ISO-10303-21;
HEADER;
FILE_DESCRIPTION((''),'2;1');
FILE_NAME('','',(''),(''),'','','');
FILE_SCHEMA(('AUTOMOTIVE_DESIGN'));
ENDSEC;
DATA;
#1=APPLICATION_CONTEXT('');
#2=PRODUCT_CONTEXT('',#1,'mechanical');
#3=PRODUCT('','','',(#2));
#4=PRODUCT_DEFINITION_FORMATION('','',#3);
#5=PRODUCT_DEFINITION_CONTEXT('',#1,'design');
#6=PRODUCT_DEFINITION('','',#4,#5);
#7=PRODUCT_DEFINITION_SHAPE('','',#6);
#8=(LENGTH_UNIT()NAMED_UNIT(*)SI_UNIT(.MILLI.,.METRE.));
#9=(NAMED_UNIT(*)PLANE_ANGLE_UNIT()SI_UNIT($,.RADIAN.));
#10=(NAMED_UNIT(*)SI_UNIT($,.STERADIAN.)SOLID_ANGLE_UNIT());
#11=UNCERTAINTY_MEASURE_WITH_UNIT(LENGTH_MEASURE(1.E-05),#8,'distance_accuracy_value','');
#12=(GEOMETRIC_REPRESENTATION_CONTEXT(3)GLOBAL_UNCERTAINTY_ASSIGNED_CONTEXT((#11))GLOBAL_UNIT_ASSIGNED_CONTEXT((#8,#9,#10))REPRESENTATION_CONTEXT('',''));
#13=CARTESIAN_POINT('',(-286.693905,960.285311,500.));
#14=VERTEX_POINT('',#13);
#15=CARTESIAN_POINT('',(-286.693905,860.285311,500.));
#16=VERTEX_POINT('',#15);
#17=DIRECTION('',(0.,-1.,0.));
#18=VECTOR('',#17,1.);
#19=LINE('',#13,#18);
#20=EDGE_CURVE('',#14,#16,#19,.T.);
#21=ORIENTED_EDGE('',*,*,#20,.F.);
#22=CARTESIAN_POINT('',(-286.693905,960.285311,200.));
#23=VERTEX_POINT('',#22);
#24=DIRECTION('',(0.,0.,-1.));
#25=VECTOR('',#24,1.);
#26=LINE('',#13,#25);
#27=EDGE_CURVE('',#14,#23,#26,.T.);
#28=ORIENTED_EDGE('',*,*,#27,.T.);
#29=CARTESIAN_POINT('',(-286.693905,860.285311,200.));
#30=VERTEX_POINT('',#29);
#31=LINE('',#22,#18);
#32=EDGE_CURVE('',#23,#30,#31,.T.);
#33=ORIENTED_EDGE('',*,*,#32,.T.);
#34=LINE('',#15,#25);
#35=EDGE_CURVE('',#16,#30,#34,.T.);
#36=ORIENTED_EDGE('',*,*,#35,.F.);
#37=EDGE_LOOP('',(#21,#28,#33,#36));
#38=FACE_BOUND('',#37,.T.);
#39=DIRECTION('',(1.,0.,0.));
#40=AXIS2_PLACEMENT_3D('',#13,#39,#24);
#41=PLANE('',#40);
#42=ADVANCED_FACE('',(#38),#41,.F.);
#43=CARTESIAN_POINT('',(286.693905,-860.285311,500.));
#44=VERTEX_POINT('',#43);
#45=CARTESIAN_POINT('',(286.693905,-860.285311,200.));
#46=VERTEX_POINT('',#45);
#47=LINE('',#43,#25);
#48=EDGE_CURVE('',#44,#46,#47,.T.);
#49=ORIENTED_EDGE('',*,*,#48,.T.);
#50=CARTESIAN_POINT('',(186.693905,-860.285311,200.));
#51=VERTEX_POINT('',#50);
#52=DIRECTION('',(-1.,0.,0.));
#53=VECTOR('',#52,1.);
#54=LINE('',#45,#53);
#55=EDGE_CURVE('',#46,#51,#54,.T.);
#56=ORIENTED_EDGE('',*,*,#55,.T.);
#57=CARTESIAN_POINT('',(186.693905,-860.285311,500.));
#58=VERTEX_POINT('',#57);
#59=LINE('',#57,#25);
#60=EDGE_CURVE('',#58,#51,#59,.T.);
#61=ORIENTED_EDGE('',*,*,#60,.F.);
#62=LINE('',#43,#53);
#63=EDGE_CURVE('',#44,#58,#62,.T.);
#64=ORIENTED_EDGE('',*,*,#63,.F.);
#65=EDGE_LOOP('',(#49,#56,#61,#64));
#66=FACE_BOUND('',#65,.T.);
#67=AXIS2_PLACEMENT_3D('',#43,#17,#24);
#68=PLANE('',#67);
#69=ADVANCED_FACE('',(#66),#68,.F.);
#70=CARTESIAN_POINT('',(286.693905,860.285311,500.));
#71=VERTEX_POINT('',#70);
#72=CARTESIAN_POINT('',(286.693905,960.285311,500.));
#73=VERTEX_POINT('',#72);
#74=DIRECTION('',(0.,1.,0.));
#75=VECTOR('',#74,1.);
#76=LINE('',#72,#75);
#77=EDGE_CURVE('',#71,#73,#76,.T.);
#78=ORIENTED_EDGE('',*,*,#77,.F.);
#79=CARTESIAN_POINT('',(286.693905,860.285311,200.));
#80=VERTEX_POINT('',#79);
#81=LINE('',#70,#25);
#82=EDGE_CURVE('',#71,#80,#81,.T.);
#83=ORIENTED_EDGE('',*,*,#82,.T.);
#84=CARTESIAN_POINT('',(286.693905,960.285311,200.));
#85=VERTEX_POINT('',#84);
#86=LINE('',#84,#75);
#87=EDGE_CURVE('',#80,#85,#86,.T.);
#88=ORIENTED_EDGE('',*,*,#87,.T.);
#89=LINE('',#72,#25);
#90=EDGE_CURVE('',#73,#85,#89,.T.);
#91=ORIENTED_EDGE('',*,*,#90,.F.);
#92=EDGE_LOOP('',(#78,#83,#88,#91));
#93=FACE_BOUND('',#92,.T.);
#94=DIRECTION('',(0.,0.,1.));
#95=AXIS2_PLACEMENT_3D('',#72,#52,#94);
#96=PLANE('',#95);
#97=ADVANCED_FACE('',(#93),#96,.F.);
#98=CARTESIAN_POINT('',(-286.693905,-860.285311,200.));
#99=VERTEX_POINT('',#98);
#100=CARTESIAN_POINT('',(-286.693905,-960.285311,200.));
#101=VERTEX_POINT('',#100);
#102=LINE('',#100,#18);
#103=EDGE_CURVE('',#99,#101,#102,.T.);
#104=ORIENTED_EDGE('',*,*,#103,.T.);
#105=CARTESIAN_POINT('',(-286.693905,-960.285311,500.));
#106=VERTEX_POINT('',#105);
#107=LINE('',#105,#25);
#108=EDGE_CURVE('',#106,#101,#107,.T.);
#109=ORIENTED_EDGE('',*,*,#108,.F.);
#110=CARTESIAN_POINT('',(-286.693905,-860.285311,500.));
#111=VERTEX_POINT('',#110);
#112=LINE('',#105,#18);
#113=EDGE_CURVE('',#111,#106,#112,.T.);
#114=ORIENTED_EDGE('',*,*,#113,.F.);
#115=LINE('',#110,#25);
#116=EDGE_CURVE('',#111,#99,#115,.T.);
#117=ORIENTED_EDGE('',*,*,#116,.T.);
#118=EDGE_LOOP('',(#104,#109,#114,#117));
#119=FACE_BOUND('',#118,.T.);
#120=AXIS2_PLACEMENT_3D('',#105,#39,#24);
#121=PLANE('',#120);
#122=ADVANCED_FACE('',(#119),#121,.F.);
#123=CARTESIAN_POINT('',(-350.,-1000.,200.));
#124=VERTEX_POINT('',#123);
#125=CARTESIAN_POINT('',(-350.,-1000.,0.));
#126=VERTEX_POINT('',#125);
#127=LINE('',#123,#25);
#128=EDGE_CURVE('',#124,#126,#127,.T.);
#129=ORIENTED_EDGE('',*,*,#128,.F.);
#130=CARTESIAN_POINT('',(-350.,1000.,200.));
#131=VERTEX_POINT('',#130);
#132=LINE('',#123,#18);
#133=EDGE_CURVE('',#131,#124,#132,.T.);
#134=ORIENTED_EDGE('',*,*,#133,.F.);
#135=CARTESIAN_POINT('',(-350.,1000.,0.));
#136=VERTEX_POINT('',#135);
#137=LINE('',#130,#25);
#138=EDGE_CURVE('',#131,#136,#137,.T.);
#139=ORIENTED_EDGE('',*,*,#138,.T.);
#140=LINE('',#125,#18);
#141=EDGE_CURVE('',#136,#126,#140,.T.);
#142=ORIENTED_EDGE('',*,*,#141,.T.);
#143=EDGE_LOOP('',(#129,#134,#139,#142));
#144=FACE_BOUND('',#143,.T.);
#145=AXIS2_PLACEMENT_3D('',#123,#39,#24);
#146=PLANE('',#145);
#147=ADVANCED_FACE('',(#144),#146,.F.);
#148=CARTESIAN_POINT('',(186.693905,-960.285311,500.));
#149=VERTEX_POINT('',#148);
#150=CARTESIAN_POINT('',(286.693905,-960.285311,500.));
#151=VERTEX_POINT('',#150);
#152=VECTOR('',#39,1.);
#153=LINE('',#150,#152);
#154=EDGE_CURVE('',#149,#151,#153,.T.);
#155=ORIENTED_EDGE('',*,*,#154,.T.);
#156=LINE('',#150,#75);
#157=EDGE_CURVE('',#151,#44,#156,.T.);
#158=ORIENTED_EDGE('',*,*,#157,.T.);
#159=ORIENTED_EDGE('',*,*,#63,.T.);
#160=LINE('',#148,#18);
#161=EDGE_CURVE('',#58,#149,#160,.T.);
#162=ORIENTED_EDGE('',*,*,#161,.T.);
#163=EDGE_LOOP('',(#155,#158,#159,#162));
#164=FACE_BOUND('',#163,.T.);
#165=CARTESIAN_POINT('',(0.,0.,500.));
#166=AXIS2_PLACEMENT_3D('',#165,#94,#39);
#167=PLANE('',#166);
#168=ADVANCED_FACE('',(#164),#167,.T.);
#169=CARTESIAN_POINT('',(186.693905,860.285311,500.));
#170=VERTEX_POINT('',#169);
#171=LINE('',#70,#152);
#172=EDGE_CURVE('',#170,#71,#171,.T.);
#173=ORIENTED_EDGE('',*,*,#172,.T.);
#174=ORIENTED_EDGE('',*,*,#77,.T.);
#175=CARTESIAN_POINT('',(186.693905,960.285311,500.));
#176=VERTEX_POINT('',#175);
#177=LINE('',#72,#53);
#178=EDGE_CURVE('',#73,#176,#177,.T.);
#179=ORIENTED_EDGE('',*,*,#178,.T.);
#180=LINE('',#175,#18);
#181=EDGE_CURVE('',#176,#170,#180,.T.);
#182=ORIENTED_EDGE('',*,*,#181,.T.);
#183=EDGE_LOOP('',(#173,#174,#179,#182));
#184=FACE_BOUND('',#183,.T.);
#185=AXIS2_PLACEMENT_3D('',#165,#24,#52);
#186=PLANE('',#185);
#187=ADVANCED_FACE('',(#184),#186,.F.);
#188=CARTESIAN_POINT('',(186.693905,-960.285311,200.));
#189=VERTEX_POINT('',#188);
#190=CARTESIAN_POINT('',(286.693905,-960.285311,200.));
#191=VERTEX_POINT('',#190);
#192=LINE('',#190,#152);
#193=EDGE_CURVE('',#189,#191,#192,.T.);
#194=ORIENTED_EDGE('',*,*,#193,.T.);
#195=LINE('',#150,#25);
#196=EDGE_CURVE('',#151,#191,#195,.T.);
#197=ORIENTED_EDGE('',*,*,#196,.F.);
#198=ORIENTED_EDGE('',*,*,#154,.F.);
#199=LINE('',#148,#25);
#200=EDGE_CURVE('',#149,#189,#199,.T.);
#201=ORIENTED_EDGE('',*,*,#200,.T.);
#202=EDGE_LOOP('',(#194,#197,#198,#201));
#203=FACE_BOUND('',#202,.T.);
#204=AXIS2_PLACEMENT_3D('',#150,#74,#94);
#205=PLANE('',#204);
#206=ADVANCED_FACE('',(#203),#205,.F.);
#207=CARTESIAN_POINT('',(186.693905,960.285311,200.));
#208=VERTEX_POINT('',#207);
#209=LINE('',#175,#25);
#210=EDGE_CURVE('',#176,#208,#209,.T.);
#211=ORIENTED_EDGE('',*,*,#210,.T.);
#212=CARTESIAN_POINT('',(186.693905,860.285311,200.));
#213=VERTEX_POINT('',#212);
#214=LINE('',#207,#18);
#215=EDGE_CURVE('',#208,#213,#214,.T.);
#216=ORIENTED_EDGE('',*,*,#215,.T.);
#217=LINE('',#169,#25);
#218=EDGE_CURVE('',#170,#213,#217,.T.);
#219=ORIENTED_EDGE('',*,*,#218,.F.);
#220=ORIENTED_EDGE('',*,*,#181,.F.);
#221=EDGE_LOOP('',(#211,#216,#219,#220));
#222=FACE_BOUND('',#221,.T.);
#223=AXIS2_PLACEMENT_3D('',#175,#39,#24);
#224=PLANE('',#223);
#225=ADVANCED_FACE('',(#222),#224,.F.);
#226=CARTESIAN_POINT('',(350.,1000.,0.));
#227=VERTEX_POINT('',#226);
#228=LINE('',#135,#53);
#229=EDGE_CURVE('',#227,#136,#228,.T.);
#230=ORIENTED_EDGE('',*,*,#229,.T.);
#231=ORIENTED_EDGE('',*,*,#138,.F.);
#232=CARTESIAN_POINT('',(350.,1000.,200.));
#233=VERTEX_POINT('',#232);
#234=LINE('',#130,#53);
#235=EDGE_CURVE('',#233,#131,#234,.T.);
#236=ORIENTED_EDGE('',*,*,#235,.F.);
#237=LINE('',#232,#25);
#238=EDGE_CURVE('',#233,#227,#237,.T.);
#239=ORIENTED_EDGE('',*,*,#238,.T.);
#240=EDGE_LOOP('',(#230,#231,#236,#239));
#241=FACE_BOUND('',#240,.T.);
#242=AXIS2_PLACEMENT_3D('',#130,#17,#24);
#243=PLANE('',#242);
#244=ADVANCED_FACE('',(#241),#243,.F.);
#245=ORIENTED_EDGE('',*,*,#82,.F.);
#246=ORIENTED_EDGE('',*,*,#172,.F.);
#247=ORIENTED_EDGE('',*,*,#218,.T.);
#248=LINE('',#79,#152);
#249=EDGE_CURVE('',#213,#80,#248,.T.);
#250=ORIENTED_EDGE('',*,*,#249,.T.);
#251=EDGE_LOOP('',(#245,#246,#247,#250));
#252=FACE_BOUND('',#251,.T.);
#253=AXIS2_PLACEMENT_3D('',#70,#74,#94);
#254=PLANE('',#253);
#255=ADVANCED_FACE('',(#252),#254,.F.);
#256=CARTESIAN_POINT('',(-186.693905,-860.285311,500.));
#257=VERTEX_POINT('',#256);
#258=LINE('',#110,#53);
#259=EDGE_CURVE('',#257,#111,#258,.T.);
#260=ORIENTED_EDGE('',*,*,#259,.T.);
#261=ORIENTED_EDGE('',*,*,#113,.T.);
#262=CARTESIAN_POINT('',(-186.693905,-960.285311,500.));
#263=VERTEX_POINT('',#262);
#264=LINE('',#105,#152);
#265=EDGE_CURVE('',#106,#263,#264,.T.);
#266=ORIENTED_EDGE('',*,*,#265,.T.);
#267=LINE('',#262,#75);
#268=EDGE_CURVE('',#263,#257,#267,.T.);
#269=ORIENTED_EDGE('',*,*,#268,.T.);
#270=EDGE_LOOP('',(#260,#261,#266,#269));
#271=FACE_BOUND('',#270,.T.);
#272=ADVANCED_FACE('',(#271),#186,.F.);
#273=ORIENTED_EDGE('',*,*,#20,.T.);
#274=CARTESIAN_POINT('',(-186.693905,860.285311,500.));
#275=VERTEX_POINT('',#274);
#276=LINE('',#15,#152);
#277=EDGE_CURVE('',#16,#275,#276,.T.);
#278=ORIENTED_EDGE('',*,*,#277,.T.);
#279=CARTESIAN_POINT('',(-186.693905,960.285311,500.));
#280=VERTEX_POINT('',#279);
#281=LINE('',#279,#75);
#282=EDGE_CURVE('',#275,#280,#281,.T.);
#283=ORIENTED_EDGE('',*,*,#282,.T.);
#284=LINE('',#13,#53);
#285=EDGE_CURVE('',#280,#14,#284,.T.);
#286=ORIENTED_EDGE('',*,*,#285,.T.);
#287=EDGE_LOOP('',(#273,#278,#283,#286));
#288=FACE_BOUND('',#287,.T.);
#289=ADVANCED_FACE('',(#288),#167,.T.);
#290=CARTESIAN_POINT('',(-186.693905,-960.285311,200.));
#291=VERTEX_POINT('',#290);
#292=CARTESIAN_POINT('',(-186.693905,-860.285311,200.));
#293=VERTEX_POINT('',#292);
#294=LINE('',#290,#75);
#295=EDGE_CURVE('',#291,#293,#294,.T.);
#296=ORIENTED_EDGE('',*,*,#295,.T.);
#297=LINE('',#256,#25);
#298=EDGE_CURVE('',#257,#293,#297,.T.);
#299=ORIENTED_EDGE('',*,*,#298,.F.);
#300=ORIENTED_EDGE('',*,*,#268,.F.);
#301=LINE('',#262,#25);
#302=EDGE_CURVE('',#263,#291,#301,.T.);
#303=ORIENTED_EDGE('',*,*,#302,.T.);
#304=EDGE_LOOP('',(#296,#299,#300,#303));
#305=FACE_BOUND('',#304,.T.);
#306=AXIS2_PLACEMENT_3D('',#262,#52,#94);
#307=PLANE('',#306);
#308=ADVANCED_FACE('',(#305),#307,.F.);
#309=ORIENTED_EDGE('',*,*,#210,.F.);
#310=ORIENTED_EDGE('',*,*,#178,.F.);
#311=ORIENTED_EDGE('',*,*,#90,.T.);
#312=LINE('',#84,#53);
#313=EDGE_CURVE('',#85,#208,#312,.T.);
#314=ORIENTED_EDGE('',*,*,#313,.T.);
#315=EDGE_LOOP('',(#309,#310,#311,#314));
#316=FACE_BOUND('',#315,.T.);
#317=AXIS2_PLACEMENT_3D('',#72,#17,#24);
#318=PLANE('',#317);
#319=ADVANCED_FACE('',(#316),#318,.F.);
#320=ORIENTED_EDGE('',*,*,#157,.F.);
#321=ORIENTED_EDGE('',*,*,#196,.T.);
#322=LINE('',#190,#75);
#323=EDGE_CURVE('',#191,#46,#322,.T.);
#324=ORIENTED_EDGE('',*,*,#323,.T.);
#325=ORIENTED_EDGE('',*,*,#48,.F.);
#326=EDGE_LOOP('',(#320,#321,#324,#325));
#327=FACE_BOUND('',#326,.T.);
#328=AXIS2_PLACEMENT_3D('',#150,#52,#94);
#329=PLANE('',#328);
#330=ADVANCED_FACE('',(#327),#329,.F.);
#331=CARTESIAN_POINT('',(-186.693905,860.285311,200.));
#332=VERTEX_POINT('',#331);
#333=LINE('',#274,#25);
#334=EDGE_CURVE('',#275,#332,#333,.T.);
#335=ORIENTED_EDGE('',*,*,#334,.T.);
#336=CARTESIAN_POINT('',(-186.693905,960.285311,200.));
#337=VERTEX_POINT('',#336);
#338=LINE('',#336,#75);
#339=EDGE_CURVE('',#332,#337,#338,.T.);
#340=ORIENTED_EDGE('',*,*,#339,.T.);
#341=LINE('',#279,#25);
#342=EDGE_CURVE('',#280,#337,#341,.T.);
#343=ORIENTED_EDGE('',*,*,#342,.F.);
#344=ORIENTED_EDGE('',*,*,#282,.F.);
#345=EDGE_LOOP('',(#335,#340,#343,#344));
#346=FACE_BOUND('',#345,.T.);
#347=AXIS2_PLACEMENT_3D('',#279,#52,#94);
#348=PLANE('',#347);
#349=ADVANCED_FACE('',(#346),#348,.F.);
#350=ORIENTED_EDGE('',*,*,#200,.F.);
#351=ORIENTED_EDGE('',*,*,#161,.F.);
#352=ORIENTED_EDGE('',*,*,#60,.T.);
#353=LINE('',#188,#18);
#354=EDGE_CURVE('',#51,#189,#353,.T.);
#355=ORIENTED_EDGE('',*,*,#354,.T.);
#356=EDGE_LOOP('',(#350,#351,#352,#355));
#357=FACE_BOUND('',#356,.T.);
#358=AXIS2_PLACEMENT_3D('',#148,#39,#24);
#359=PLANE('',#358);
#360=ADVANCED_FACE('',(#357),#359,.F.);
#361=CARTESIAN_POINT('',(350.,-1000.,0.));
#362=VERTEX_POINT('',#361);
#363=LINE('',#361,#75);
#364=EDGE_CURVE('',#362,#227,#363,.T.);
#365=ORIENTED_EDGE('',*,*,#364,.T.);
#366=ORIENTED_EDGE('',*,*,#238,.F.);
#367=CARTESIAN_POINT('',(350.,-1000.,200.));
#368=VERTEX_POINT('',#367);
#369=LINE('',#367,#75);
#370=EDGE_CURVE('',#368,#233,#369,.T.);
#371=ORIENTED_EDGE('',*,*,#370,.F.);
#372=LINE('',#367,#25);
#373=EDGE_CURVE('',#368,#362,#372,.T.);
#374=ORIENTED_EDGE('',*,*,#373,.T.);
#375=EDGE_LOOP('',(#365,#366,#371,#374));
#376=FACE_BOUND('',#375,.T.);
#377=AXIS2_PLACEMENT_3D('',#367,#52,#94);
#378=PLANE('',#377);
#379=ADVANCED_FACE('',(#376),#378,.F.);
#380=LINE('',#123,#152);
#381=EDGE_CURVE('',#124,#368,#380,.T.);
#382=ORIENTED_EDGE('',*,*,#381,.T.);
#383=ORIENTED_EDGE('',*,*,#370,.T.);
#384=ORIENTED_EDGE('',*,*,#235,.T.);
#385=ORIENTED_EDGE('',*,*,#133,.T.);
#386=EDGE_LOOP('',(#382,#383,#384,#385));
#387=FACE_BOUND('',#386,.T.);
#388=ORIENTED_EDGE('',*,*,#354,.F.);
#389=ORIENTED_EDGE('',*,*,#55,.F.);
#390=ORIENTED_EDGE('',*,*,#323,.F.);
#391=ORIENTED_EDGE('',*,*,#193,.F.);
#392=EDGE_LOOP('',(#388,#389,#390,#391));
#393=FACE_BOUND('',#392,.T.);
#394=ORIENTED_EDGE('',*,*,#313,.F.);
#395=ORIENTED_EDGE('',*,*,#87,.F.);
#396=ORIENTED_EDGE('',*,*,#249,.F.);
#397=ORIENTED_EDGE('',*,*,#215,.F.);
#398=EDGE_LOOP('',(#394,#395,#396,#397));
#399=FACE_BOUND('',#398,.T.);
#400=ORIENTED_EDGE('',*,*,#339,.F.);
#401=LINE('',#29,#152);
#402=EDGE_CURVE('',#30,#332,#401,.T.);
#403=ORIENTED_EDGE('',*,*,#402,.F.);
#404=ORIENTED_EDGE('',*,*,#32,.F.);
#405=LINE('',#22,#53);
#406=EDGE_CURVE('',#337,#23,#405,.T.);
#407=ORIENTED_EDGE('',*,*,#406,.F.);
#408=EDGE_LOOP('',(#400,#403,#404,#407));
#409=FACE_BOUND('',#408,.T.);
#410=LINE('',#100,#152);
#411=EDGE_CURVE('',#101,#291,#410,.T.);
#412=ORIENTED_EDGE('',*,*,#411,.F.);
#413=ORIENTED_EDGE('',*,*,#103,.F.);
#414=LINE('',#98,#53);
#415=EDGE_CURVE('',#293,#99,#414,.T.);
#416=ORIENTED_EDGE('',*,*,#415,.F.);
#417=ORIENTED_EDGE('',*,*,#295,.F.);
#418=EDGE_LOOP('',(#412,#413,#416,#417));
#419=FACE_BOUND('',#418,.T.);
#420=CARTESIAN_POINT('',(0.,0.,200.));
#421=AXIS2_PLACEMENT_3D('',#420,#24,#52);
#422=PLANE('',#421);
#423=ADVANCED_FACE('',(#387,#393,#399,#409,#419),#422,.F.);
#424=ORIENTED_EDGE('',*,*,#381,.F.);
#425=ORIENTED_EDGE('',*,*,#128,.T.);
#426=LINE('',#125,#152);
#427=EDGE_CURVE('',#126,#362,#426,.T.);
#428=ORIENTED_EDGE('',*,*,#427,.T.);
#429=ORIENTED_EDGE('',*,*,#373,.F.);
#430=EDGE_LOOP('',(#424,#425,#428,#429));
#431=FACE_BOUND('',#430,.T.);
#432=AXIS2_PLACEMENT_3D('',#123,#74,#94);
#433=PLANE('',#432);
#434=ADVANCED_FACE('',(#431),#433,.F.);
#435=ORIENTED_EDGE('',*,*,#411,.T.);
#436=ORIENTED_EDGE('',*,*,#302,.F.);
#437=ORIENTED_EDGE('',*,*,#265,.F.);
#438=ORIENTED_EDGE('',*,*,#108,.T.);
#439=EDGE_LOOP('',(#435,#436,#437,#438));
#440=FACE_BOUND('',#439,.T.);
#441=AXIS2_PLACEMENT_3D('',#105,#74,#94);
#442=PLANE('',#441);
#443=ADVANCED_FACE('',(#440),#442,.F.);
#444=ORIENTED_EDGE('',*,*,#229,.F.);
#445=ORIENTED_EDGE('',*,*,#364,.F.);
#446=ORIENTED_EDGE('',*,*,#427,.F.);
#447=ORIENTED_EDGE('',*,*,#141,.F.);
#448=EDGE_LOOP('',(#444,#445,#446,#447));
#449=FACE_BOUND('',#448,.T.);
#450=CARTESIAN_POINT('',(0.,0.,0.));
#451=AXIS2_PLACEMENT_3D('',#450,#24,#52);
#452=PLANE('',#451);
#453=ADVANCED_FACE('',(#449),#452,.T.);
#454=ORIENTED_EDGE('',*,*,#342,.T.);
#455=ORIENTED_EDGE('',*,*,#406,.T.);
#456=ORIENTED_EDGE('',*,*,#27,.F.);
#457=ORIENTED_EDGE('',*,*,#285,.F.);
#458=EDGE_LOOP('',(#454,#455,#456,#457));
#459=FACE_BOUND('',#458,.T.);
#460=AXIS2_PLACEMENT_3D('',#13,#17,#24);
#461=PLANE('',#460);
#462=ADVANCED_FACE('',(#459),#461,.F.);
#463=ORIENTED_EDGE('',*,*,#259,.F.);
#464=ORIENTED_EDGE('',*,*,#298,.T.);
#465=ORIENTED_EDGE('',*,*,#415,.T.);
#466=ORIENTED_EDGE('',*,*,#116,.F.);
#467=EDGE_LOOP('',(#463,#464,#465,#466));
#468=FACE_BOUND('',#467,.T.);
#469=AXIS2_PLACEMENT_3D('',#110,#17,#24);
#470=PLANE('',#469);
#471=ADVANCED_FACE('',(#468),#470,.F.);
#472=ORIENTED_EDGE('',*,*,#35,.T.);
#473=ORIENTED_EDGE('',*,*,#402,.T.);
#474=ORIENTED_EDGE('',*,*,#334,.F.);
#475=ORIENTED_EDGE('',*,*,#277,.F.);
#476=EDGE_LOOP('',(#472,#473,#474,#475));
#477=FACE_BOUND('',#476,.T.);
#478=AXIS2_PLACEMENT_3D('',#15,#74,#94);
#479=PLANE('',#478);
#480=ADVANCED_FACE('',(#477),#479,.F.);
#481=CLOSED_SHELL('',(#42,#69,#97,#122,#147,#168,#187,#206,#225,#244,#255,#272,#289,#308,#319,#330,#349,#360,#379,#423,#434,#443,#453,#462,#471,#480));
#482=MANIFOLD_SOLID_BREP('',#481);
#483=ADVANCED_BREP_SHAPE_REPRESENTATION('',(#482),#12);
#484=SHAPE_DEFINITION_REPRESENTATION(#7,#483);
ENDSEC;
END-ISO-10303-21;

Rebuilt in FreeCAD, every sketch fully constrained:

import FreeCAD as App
import Part
import Sketcher
Q = App.Units.Quantity


def add_polygon(sketch, points):
    """Adds a closed chain of lines whose ends are joined by coincident constraints."""
    first, n = sketch.GeometryCount, len(points)
    for a, b in zip(points, points[1:] + points[:1]):
        sketch.addGeometry(Part.LineSegment(App.Vector(*a, 0), App.Vector(*b, 0)), False)
    for i in range(n):
        sketch.addConstraint(Sketcher.Constraint("Coincident", first + i, 2, first + (i + 1) % n, 1))

doc = App.newDocument("Part")
params = doc.addObject("Spreadsheet::Sheet", "Params")
for row, (alias, value) in enumerate([
    ("sketch1_width", "700 mm"),
    ("sketch1_height", "2000 mm"),
    ("pad1_length", "200 mm"),
    ("sketch2_width", "100 mm"),
    ("pad2_length", "300 mm"),
], start=1):
    params.set(f"A{row}", alias)
    params.set(f"B{row}", "=" + value)
    params.setAlias(f"B{row}", alias)

body = doc.addObject("PartDesign::Body", "Body")

# Sketch on XY plane
sketch1 = doc.addObject("Sketcher::SketchObject", "Sketch")
body.addObject(sketch1)
sketch1.AttachmentSupport = (doc.XY_Plane, [""])
sketch1.MapMode = "FlatFace"
add_polygon(sketch1, [(-350, 1000), (-350, -1000), (350, -1000), (350, 1000)])  # lines 0-3
sketch1.addConstraint([
    Sketcher.Constraint("Vertical", 0),
    Sketcher.Constraint("Horizontal", 1),
    Sketcher.Constraint("Vertical", 2),
    Sketcher.Constraint("Horizontal", 3),
    Sketcher.Constraint("Symmetric", 0, 2, 2, 2, -1, 1),
    Sketcher.Constraint("DistanceX", 1, 1, 1, 2, Q("700 mm")),
    Sketcher.Constraint("DistanceY", 0, 2, 0, 1, Q("2000 mm")),
])
sketch1.setExpression("Constraints[9]", "Params.sketch1_width")
sketch1.setExpression("Constraints[10]", "Params.sketch1_height")
pad1 = doc.addObject("PartDesign::Pad", "Pad")
body.addObject(pad1)
pad1.Profile = sketch1
pad1.setExpression("Length", "Params.pad1_length")

# Sketch on XY plane
sketch2 = doc.addObject("Sketcher::SketchObject", "Sketch001")
body.addObject(sketch2)
sketch2.AttachmentSupport = (doc.XY_Plane, [""])
sketch2.MapMode = "FlatFace"
sketch2.AttachmentOffset = App.Placement(App.Vector(0, 0, 200), App.Rotation())
add_polygon(sketch2, [(-287, 960), (-287, 860), (-187, 860), (-187, 960)])  # lines 0-3
add_polygon(sketch2, [(187, 960), (187, 860), (287, 860), (287, 960)])  # lines 4-7
add_polygon(sketch2, [(187, -860), (187, -960), (287, -960), (287, -860)])  # lines 8-11
add_polygon(sketch2, [(-287, -860), (-287, -960), (-187, -960), (-187, -860)])  # lines 12-15
sketch2.addConstraint([
    Sketcher.Constraint("Vertical", 0),
    Sketcher.Constraint("Horizontal", 1),
    Sketcher.Constraint("Vertical", 2),
    Sketcher.Constraint("Horizontal", 3),
    Sketcher.Constraint("Vertical", 4),
    Sketcher.Constraint("Horizontal", 5),
    Sketcher.Constraint("Vertical", 6),
    Sketcher.Constraint("Horizontal", 7),
    Sketcher.Constraint("Vertical", 8),
    Sketcher.Constraint("Horizontal", 9),
    Sketcher.Constraint("Vertical", 10),
    Sketcher.Constraint("Horizontal", 11),
    Sketcher.Constraint("Vertical", 12),
    Sketcher.Constraint("Horizontal", 13),
    Sketcher.Constraint("Vertical", 14),
    Sketcher.Constraint("Horizontal", 15),
    Sketcher.Constraint("Symmetric", 2, 2, 8, 2, -1, 1),
    Sketcher.Constraint("Symmetric", 0, 2, 10, 2, -1, 1),
    Sketcher.Constraint("Symmetric", 6, 2, 12, 2, -1, 1),
    Sketcher.Constraint("Symmetric", 4, 2, 14, 2, -1, 1),
    Sketcher.Constraint("Symmetric", 1, 2, 4, 2, -2),
    Sketcher.Constraint("Symmetric", 3, 2, 6, 2, -2),
    Sketcher.Constraint("Equal", 15, 0),
    Sketcher.Constraint("DistanceX", 1, 1, 1, 2, Q("100 mm")),
    Sketcher.Constraint("DistanceY", -1, 1, 0, 2, Q("860.285311 mm")),
    Sketcher.Constraint("DistanceX", 1, 2, 4, 2, Q("373.387811 mm")),
])
sketch2.setExpression("Constraints[39]", "Params.sketch2_width")
pad2 = doc.addObject("PartDesign::Pad", "Pad001")
body.addObject(pad2)
pad2.Profile = sketch2
pad2.setExpression("Length", "Params.pad2_length")

doc.recompute()
